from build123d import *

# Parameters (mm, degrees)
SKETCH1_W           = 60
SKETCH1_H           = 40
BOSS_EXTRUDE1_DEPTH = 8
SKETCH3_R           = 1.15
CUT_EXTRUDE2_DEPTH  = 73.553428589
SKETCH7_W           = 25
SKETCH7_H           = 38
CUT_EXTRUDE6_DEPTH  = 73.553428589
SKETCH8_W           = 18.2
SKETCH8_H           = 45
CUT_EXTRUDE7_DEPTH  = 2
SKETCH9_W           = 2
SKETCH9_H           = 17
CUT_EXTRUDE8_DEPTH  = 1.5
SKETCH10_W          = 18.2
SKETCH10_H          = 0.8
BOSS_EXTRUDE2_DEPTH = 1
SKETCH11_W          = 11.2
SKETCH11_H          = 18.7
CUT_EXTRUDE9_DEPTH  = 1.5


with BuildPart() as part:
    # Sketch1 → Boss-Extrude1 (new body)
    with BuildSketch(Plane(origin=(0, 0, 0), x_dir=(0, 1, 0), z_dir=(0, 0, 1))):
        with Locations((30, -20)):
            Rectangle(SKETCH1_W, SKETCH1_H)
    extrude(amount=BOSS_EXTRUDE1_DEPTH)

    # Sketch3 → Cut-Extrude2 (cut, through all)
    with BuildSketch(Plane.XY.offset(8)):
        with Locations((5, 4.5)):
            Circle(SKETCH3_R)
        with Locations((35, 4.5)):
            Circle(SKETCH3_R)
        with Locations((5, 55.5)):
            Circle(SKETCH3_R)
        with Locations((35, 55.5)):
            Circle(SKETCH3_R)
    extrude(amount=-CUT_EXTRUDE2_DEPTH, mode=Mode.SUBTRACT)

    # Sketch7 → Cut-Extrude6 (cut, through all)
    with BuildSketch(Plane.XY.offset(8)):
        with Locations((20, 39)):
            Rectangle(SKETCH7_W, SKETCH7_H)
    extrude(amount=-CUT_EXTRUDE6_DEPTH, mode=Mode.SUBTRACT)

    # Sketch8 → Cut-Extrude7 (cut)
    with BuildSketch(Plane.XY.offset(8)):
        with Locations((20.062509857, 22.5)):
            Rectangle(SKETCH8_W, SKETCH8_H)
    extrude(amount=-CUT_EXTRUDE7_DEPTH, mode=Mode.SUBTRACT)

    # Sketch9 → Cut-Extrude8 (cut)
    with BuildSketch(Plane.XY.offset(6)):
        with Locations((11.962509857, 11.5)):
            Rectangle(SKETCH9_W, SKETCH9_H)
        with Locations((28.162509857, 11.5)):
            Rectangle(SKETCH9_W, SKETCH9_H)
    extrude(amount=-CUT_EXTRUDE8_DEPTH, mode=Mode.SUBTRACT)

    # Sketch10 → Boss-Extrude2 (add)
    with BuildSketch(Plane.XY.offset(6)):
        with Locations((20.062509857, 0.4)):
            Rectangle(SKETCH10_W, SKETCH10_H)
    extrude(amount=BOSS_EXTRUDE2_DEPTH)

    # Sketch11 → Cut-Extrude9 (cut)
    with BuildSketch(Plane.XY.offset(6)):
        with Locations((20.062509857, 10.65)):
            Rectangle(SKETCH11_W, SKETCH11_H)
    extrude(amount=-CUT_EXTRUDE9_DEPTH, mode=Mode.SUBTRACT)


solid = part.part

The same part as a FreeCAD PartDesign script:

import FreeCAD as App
import Part
import Sketcher
Q = App.Units.Quantity

doc = App.newDocument("Part")
body = doc.addObject("PartDesign::Body", "Body")

sketch1 = body.newObject("Sketcher::SketchObject", "Sketch")
sketch1.AttachmentSupport = (doc.getObject("XY_Plane"), [""])
sketch1.MapMode = "FlatFace"
sketch1.addGeometry(Part.LineSegment(App.Vector(0, 0, 0), App.Vector(40, 0, 0)), False)
sketch1.addGeometry(Part.LineSegment(App.Vector(40, 0, 0), App.Vector(40, 60, 0)), False)
sketch1.addGeometry(Part.LineSegment(App.Vector(40, 60, 0), App.Vector(0, 60, 0)), False)
sketch1.addGeometry(Part.LineSegment(App.Vector(0, 60, 0), App.Vector(0, 0, 0)), False)
sketch1.addConstraint(Sketcher.Constraint("Coincident", 0, 2, 1, 1))
sketch1.addConstraint(Sketcher.Constraint("Coincident", 1, 2, 2, 1))
sketch1.addConstraint(Sketcher.Constraint("Coincident", 2, 2, 3, 1))
sketch1.addConstraint(Sketcher.Constraint("Coincident", 3, 2, 0, 1))
sketch1.addConstraint(Sketcher.Constraint("Horizontal", 0))
sketch1.addConstraint(Sketcher.Constraint("Vertical", 1))
sketch1.addConstraint(Sketcher.Constraint("Horizontal", 2))
sketch1.addConstraint(Sketcher.Constraint("Vertical", 3))
sketch1.addConstraint(Sketcher.Constraint("Coincident", 3, 2, -1, 1))
sketch1.addConstraint(Sketcher.Constraint("DistanceX", 0, 1, 0, 2, Q("40 mm")))
sketch1.addConstraint(Sketcher.Constraint("DistanceY", 1, 1, 1, 2, Q("60 mm")))
pad1 = body.newObject("PartDesign::Pad", "Pad")
pad1.Profile = sketch1
pad1.Length = 8

sketch2 = body.newObject("Sketcher::SketchObject", "Sketch001")
sketch2.AttachmentSupport = (doc.getObject("XY_Plane"), [""])
sketch2.MapMode = "FlatFace"
sketch2.AttachmentOffset = App.Placement(App.Vector(0, 0, 8), App.Rotation())
sketch2.addGeometry(Part.Circle(App.Vector(5, 4.5, 0), App.Vector(0, 0, 1), 1.15), False)
sketch2.addGeometry(Part.Circle(App.Vector(35, 4.5, 0), App.Vector(0, 0, 1), 1.15), False)
sketch2.addGeometry(Part.Circle(App.Vector(5, 55.5, 0), App.Vector(0, 0, 1), 1.15), False)
sketch2.addGeometry(Part.Circle(App.Vector(35, 55.5, 0), App.Vector(0, 0, 1), 1.15), False)
sketch2.addConstraint(Sketcher.Constraint("Equal", 0, 1))
sketch2.addConstraint(Sketcher.Constraint("Equal", 1, 2))
sketch2.addConstraint(Sketcher.Constraint("Equal", 2, 3))
sketch2.addConstraint(Sketcher.Constraint("Horizontal", 0, 3, 1, 3))
sketch2.addConstraint(Sketcher.Constraint("Horizontal", 2, 3, 3, 3))
sketch2.addConstraint(Sketcher.Constraint("Vertical", 0, 3, 2, 3))
sketch2.addConstraint(Sketcher.Constraint("Vertical", 1, 3, 3, 3))
sketch2.addConstraint(Sketcher.Constraint("Diameter", 0, Q("2.3 mm")))
sketch2.addConstraint(Sketcher.Constraint("DistanceX", -1, 1, 0, 3, Q("5 mm")))
sketch2.addConstraint(Sketcher.Constraint("DistanceX", -1, 1, 1, 3, Q("35 mm")))
sketch2.addConstraint(Sketcher.Constraint("DistanceY", 0, 3, 2, 3, Q("51 mm")))
sketch2.addConstraint(Sketcher.Constraint("DistanceY", -1, 1, 0, 3, Q("4.5 mm")))
pocket1 = body.newObject("PartDesign::Pocket", "Pocket")
pocket1.Profile = sketch2
pocket1.Type = "ThroughAll"

sketch3 = body.newObject("Sketcher::SketchObject", "Sketch002")
sketch3.AttachmentSupport = (doc.getObject("XY_Plane"), [""])
sketch3.MapMode = "FlatFace"
sketch3.AttachmentOffset = App.Placement(App.Vector(0, 0, 8), App.Rotation())
sketch3.addGeometry(Part.LineSegment(App.Vector(7.5, 58, 0), App.Vector(7.5, 20, 0)), False)
sketch3.addGeometry(Part.LineSegment(App.Vector(7.5, 20, 0), App.Vector(32.5, 20, 0)), False)
sketch3.addGeometry(Part.LineSegment(App.Vector(32.5, 20, 0), App.Vector(32.5, 58, 0)), False)
sketch3.addGeometry(Part.LineSegment(App.Vector(32.5, 58, 0), App.Vector(7.5, 58, 0)), False)
sketch3.addConstraint(Sketcher.Constraint("Coincident", 0, 2, 1, 1))
sketch3.addConstraint(Sketcher.Constraint("Coincident", 1, 2, 2, 1))
sketch3.addConstraint(Sketcher.Constraint("Coincident", 2, 2, 3, 1))
sketch3.addConstraint(Sketcher.Constraint("Coincident", 3, 2, 0, 1))
sketch3.addConstraint(Sketcher.Constraint("Vertical", 0))
sketch3.addConstraint(Sketcher.Constraint("Horizontal", 1))
sketch3.addConstraint(Sketcher.Constraint("Vertical", 2))
sketch3.addConstraint(Sketcher.Constraint("Horizontal", 3))
sketch3.addConstraint(Sketcher.Constraint("DistanceX", 1, 1, 1, 2, Q("25 mm")))
sketch3.addConstraint(Sketcher.Constraint("DistanceY", 0, 2, 0, 1, Q("38 mm")))
sketch3.addConstraint(Sketcher.Constraint("DistanceY", -1, 1, 0, 2, Q("20 mm")))
sketch3.addConstraint(Sketcher.Constraint("DistanceX", -1, 1, 0, 2, Q("7.5 mm")))
pocket2 = body.newObject("PartDesign::Pocket", "Pocket001")
pocket2.Profile = sketch3
pocket2.Type = "ThroughAll"

sketch4 = body.newObject("Sketcher::SketchObject", "Sketch003")
sketch4.AttachmentSupport = (doc.getObject("XY_Plane"), [""])
sketch4.MapMode = "FlatFace"
sketch4.AttachmentOffset = App.Placement(App.Vector(0, 0, 8), App.Rotation())
sketch4.addGeometry(Part.LineSegment(App.Vector(10.96251, 45, 0), App.Vector(10.96251, 0, 0)), False)
sketch4.addGeometry(Part.LineSegment(App.Vector(10.96251, 0, 0), App.Vector(29.16251, 0, 0)), False)
sketch4.addGeometry(Part.LineSegment(App.Vector(29.16251, 0, 0), App.Vector(29.16251, 45, 0)), False)
sketch4.addGeometry(Part.LineSegment(App.Vector(29.16251, 45, 0), App.Vector(10.96251, 45, 0)), False)
sketch4.addConstraint(Sketcher.Constraint("Coincident", 0, 2, 1, 1))
sketch4.addConstraint(Sketcher.Constraint("Coincident", 1, 2, 2, 1))
sketch4.addConstraint(Sketcher.Constraint("Coincident", 2, 2, 3, 1))
sketch4.addConstraint(Sketcher.Constraint("Coincident", 3, 2, 0, 1))
sketch4.addConstraint(Sketcher.Constraint("Vertical", 0))
sketch4.addConstraint(Sketcher.Constraint("Horizontal", 1))
sketch4.addConstraint(Sketcher.Constraint("Vertical", 2))
sketch4.addConstraint(Sketcher.Constraint("Horizontal", 3))
sketch4.addConstraint(Sketcher.Constraint("PointOnObject", 0, 2, -1))
sketch4.addConstraint(Sketcher.Constraint("DistanceY", 0, 2, 0, 1, Q("45 mm")))
sketch4.addConstraint(Sketcher.Constraint("DistanceX", 1, 1, 1, 2, Q("18.2 mm")))
sketch4.addConstraint(Sketcher.Constraint("DistanceX", -1, 1, 0, 2, Q("10.96251 mm")))
pocket3 = body.newObject("PartDesign::Pocket", "Pocket002")
pocket3.Profile = sketch4
pocket3.Length = 2

sketch5 = body.newObject("Sketcher::SketchObject", "Sketch004")
sketch5.AttachmentSupport = (doc.getObject("XY_Plane"), [""])
sketch5.MapMode = "FlatFace"
sketch5.AttachmentOffset = App.Placement(App.Vector(0, 0, 6), App.Rotation())
sketch5.addGeometry(Part.LineSegment(App.Vector(10.96251, 20, 0), App.Vector(10.96251, 3, 0)), False)
sketch5.addGeometry(Part.LineSegment(App.Vector(10.96251, 3, 0), App.Vector(12.96251, 3, 0)), False)
sketch5.addGeometry(Part.LineSegment(App.Vector(12.96251, 3, 0), App.Vector(12.96251, 20, 0)), False)
sketch5.addGeometry(Part.LineSegment(App.Vector(12.96251, 20, 0), App.Vector(10.96251, 20, 0)), False)
sketch5.addGeometry(Part.LineSegment(App.Vector(27.16251, 20, 0), App.Vector(27.16251, 3, 0)), False)
sketch5.addGeometry(Part.LineSegment(App.Vector(27.16251, 3, 0), App.Vector(29.16251, 3, 0)), False)
sketch5.addGeometry(Part.LineSegment(App.Vector(29.16251, 3, 0), App.Vector(29.16251, 20, 0)), False)
sketch5.addGeometry(Part.LineSegment(App.Vector(29.16251, 20, 0), App.Vector(27.16251, 20, 0)), False)
sketch5.addConstraint(Sketcher.Constraint("Coincident", 0, 2, 1, 1))
sketch5.addConstraint(Sketcher.Constraint("Coincident", 1, 2, 2, 1))
sketch5.addConstraint(Sketcher.Constraint("Coincident", 2, 2, 3, 1))
sketch5.addConstraint(Sketcher.Constraint("Coincident", 3, 2, 0, 1))
sketch5.addConstraint(Sketcher.Constraint("Coincident", 4, 2, 5, 1))
sketch5.addConstraint(Sketcher.Constraint("Coincident", 5, 2, 6, 1))
sketch5.addConstraint(Sketcher.Constraint("Coincident", 6, 2, 7, 1))
sketch5.addConstraint(Sketcher.Constraint("Coincident", 7, 2, 4, 1))
sketch5.addConstraint(Sketcher.Constraint("Vertical", 0))
sketch5.addConstraint(Sketcher.Constraint("Horizontal", 1))
sketch5.addConstraint(Sketcher.Constraint("Vertical", 2))
sketch5.addConstraint(Sketcher.Constraint("Horizontal", 3))
sketch5.addConstraint(Sketcher.Constraint("Vertical", 4))
sketch5.addConstraint(Sketcher.Constraint("Horizontal", 5))
sketch5.addConstraint(Sketcher.Constraint("Vertical", 6))
sketch5.addConstraint(Sketcher.Constraint("Horizontal", 7))
sketch5.addConstraint(Sketcher.Constraint("Horizontal", 1, 2, 4, 2))
sketch5.addConstraint(Sketcher.Constraint("Horizontal", 3, 2, 6, 2))
sketch5.addConstraint(Sketcher.Constraint("Equal", 3, 5))
sketch5.addConstraint(Sketcher.Constraint("DistanceX", 1, 1, 1, 2, Q("2 mm")))
sketch5.addConstraint(Sketcher.Constraint("DistanceY", 0, 2, 0, 1, Q("17 mm")))
sketch5.addConstraint(Sketcher.Constraint("DistanceY", -1, 1, 0, 2, Q("3 mm")))
sketch5.addConstraint(Sketcher.Constraint("DistanceX", 1, 2, 4, 2, Q("14.2 mm")))
sketch5.addConstraint(Sketcher.Constraint("DistanceX", -1, 1, 0, 2, Q("10.96251 mm")))
pocket4 = body.newObject("PartDesign::Pocket", "Pocket003")
pocket4.Profile = sketch5
pocket4.Length = 1.5

sketch6 = body.newObject("Sketcher::SketchObject", "Sketch005")
sketch6.AttachmentSupport = (doc.getObject("XY_Plane"), [""])
sketch6.MapMode = "FlatFace"
sketch6.AttachmentOffset = App.Placement(App.Vector(0, 0, 6), App.Rotation())
sketch6.addGeometry(Part.LineSegment(App.Vector(10.96251, 0.8, 0), App.Vector(10.96251, 0, 0)), False)
sketch6.addGeometry(Part.LineSegment(App.Vector(10.96251, 0, 0), App.Vector(29.16251, 0, 0)), False)
sketch6.addGeometry(Part.LineSegment(App.Vector(29.16251, 0, 0), App.Vector(29.16251, 0.8, 0)), False)
sketch6.addGeometry(Part.LineSegment(App.Vector(29.16251, 0.8, 0), App.Vector(10.96251, 0.8, 0)), False)
sketch6.addConstraint(Sketcher.Constraint("Coincident", 0, 2, 1, 1))
sketch6.addConstraint(Sketcher.Constraint("Coincident", 1, 2, 2, 1))
sketch6.addConstraint(Sketcher.Constraint("Coincident", 2, 2, 3, 1))
sketch6.addConstraint(Sketcher.Constraint("Coincident", 3, 2, 0, 1))
sketch6.addConstraint(Sketcher.Constraint("Vertical", 0))
sketch6.addConstraint(Sketcher.Constraint("Horizontal", 1))
sketch6.addConstraint(Sketcher.Constraint("Vertical", 2))
sketch6.addConstraint(Sketcher.Constraint("Horizontal", 3))
sketch6.addConstraint(Sketcher.Constraint("PointOnObject", 0, 2, -1))
sketch6.addConstraint(Sketcher.Constraint("DistanceX", 1, 1, 1, 2, Q("18.2 mm")))
sketch6.addConstraint(Sketcher.Constraint("DistanceY", 0, 2, 0, 1, Q("0.8 mm")))
sketch6.addConstraint(Sketcher.Constraint("DistanceX", -1, 1, 0, 2, Q("10.96251 mm")))
pad2 = body.newObject("PartDesign::Pad", "Pad001")
pad2.Profile = sketch6
pad2.Length = 1

sketch7 = body.newObject("Sketcher::SketchObject", "Sketch006")
sketch7.AttachmentSupport = (doc.getObject("XY_Plane"), [""])
sketch7.MapMode = "FlatFace"
sketch7.AttachmentOffset = App.Placement(App.Vector(0, 0, 6), App.Rotation())
sketch7.addGeometry(Part.LineSegment(App.Vector(14.46251, 20, 0), App.Vector(14.46251, 1.3, 0)), False)
sketch7.addGeometry(Part.LineSegment(App.Vector(14.46251, 1.3, 0), App.Vector(25.66251, 1.3, 0)), False)
sketch7.addGeometry(Part.LineSegment(App.Vector(25.66251, 1.3, 0), App.Vector(25.66251, 20, 0)), False)
sketch7.addGeometry(Part.LineSegment(App.Vector(25.66251, 20, 0), App.Vector(14.46251, 20, 0)), False)
sketch7.addConstraint(Sketcher.Constraint("Coincident", 0, 2, 1, 1))
sketch7.addConstraint(Sketcher.Constraint("Coincident", 1, 2, 2, 1))
sketch7.addConstraint(Sketcher.Constraint("Coincident", 2, 2, 3, 1))
sketch7.addConstraint(Sketcher.Constraint("Coincident", 3, 2, 0, 1))
sketch7.addConstraint(Sketcher.Constraint("Vertical", 0))
sketch7.addConstraint(Sketcher.Constraint("Horizontal", 1))
sketch7.addConstraint(Sketcher.Constraint("Vertical", 2))
sketch7.addConstraint(Sketcher.Constraint("Horizontal", 3))
sketch7.addConstraint(Sketcher.Constraint("DistanceX", 1, 1, 1, 2, Q("11.2 mm")))
sketch7.addConstraint(Sketcher.Constraint("DistanceY", 0, 2, 0, 1, Q("18.7 mm")))
sketch7.addConstraint(Sketcher.Constraint("DistanceY", -1, 1, 2, 2, Q("20 mm")))
sketch7.addConstraint(Sketcher.Constraint("DistanceX", -1, 1, 0, 2, Q("14.46251 mm")))
pocket5 = body.newObject("PartDesign::Pocket", "Pocket004")
pocket5.Profile = sketch7
pocket5.Length = 1.5

doc.recompute()
